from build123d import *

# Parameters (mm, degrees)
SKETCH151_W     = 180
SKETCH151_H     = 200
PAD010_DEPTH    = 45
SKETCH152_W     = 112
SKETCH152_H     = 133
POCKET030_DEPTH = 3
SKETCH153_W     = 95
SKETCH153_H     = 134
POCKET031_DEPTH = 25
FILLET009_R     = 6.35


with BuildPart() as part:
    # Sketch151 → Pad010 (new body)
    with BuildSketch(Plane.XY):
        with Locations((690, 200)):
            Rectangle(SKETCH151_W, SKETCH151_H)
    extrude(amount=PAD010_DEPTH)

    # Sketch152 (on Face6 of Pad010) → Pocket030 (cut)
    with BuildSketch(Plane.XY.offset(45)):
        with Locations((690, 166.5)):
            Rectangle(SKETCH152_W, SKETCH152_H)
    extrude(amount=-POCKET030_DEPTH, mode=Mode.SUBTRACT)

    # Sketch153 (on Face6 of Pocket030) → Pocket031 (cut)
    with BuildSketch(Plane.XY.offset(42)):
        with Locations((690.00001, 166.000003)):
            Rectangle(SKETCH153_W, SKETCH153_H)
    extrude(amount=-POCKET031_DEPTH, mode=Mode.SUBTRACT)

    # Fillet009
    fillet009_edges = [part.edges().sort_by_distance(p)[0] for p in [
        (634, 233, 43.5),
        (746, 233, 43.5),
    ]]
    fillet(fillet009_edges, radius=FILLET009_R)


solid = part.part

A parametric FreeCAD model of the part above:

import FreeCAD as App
import Part
import Sketcher

V = App.Vector
Q = App.Units.Quantity


def edges_at(feature, points):
    """Names of the edges that pass closest to the given points."""
    edges = feature.Shape.Edges
    near = lambda p: min(range(len(edges)), key=lambda i: edges[i].distToShape(Part.Vertex(*p))[0])
    return sorted({f"Edge{near(p) + 1}" for p in points})

doc = App.newDocument("Part")
body = doc.addObject("PartDesign::Body", "Body")

# Sketch on XY plane
sketch1 = body.newObject("Sketcher::SketchObject", "Sketch")
sketch1.AttachmentSupport = (doc.getObject("XY_Plane"), [""])
sketch1.MapMode = "FlatFace"
sketch1.addGeometry(Part.LineSegment(V(600, 300, 0), V(600, 100, 0)), False)
sketch1.addGeometry(Part.LineSegment(V(600, 100, 0), V(780, 100, 0)), False)
sketch1.addGeometry(Part.LineSegment(V(780, 100, 0), V(780, 300, 0)), False)
sketch1.addGeometry(Part.LineSegment(V(780, 300, 0), V(600, 300, 0)), False)
sketch1.addConstraint(Sketcher.Constraint("Coincident", 0, 2, 1, 1))
sketch1.addConstraint(Sketcher.Constraint("Coincident", 1, 2, 2, 1))
sketch1.addConstraint(Sketcher.Constraint("Coincident", 2, 2, 3, 1))
sketch1.addConstraint(Sketcher.Constraint("Coincident", 3, 2, 0, 1))
sketch1.addConstraint(Sketcher.Constraint("Vertical", 0))
sketch1.addConstraint(Sketcher.Constraint("Horizontal", 1))
sketch1.addConstraint(Sketcher.Constraint("Vertical", 2))
sketch1.addConstraint(Sketcher.Constraint("Horizontal", 3))
sketch1.addConstraint(Sketcher.Constraint("DistanceX", 1, 1, 1, 2, Q("180 mm")))
sketch1.addConstraint(Sketcher.Constraint("DistanceY", 0, 2, 0, 1, Q("200 mm")))
sketch1.addConstraint(Sketcher.Constraint("DistanceX", -1, 1, 0, 2, Q("600 mm")))
sketch1.addConstraint(Sketcher.Constraint("DistanceY", -1, 1, 0, 2, Q("100 mm")))
pad1 = body.newObject("PartDesign::Pad", "Pad")
pad1.Profile = sketch1
pad1.Length = 45

# Sketch on XY plane
sketch2 = body.newObject("Sketcher::SketchObject", "Sketch001")
sketch2.AttachmentSupport = (doc.getObject("XY_Plane"), [""])
sketch2.MapMode = "FlatFace"
sketch2.AttachmentOffset = App.Placement(V(0, 0, 45), App.Rotation())
sketch2.addGeometry(Part.LineSegment(V(634, 233, 0), V(634, 100, 0)), False)
sketch2.addGeometry(Part.LineSegment(V(634, 100, 0), V(746, 100, 0)), False)
sketch2.addGeometry(Part.LineSegment(V(746, 100, 0), V(746, 233, 0)), False)
sketch2.addGeometry(Part.LineSegment(V(746, 233, 0), V(634, 233, 0)), False)
sketch2.addConstraint(Sketcher.Constraint("Coincident", 0, 2, 1, 1))
sketch2.addConstraint(Sketcher.Constraint("Coincident", 1, 2, 2, 1))
sketch2.addConstraint(Sketcher.Constraint("Coincident", 2, 2, 3, 1))
sketch2.addConstraint(Sketcher.Constraint("Coincident", 3, 2, 0, 1))
sketch2.addConstraint(Sketcher.Constraint("Vertical", 0))
sketch2.addConstraint(Sketcher.Constraint("Horizontal", 1))
sketch2.addConstraint(Sketcher.Constraint("Vertical", 2))
sketch2.addConstraint(Sketcher.Constraint("Horizontal", 3))
sketch2.addConstraint(Sketcher.Constraint("DistanceX", 1, 1, 1, 2, Q("112 mm")))
sketch2.addConstraint(Sketcher.Constraint("DistanceY", 0, 2, 0, 1, Q("133 mm")))
sketch2.addConstraint(Sketcher.Constraint("DistanceX", -1, 1, 0, 2, Q("634 mm")))
sketch2.addConstraint(Sketcher.Constraint("DistanceY", -1, 1, 0, 2, Q("100 mm")))
pocket1 = body.newObject("PartDesign::Pocket", "Pocket")
pocket1.Profile = sketch2
pocket1.Length = 3

# Sketch on XY plane
sketch3 = body.newObject("Sketcher::SketchObject", "Sketch002")
sketch3.AttachmentSupport = (doc.getObject("XY_Plane"), [""])
sketch3.MapMode = "FlatFace"
sketch3.AttachmentOffset = App.Placement(V(0, 0, 42), App.Rotation())
sketch3.addGeometry(Part.LineSegment(V(643, 233, 0), V(643, 99, 0)), False)
sketch3.addGeometry(Part.LineSegment(V(643, 99, 0), V(738, 99, 0)), False)
sketch3.addGeometry(Part.LineSegment(V(738, 99, 0), V(738, 233, 0)), False)
sketch3.addGeometry(Part.LineSegment(V(738, 233, 0), V(643, 233, 0)), False)
sketch3.addConstraint(Sketcher.Constraint("Coincident", 0, 2, 1, 1))
sketch3.addConstraint(Sketcher.Constraint("Coincident", 1, 2, 2, 1))
sketch3.addConstraint(Sketcher.Constraint("Coincident", 2, 2, 3, 1))
sketch3.addConstraint(Sketcher.Constraint("Coincident", 3, 2, 0, 1))
sketch3.addConstraint(Sketcher.Constraint("Vertical", 0))
sketch3.addConstraint(Sketcher.Constraint("Horizontal", 1))
sketch3.addConstraint(Sketcher.Constraint("Vertical", 2))
sketch3.addConstraint(Sketcher.Constraint("Horizontal", 3))
sketch3.addConstraint(Sketcher.Constraint("DistanceX", 1, 1, 1, 2, Q("95 mm")))
sketch3.addConstraint(Sketcher.Constraint("DistanceY", 0, 2, 0, 1, Q("134 mm")))
sketch3.addConstraint(Sketcher.Constraint("DistanceX", -1, 1, 0, 2, Q("642.50001 mm")))
sketch3.addConstraint(Sketcher.Constraint("DistanceY", -1, 1, 0, 2, Q("99.000003 mm")))
pocket2 = body.newObject("PartDesign::Pocket", "Pocket001")
pocket2.Profile = sketch3
pocket2.Length = 25
doc.recompute()

fillet = body.newObject("PartDesign::Fillet", "Fillet")
fillet.Base = (pocket2, edges_at(pocket2, [(634, 233, 43.5), (746, 233, 43.5)]))
fillet.Radius = 6.35

doc.recompute()
